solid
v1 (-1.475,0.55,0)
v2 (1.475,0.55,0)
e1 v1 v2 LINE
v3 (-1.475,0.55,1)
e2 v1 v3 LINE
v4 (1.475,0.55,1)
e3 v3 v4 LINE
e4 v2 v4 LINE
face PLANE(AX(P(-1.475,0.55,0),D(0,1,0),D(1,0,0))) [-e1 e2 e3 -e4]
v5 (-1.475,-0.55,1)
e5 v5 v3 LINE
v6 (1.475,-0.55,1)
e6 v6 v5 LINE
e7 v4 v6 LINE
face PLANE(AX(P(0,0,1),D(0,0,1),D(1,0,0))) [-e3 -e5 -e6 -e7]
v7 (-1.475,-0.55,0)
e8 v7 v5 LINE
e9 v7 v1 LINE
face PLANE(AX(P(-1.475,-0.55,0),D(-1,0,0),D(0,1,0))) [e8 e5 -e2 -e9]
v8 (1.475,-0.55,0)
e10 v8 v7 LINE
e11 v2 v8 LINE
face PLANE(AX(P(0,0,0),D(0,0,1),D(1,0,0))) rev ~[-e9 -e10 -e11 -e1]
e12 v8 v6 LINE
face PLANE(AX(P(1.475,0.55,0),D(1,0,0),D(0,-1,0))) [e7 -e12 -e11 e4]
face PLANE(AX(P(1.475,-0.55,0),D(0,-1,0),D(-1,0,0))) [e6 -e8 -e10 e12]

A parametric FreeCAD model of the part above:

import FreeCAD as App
import Part
import Sketcher

doc = App.newDocument("Part")
body = doc.addObject("PartDesign::Body", "Body")

sketch1 = body.newObject("Sketcher::SketchObject", "Sketch")
sketch1.AttachmentSupport = (doc.getObject("XY_Plane"), [""])
sketch1.MapMode = "FlatFace"
sketch1.addGeometry(Part.LineSegment(App.Vector(-1.5, 0.6, 0), App.Vector(-1.5, -0.6, 0)), False)
sketch1.addGeometry(Part.LineSegment(App.Vector(-1.5, -0.6, 0), App.Vector(1.5, -0.6, 0)), False)
sketch1.addGeometry(Part.LineSegment(App.Vector(1.5, -0.6, 0), App.Vector(1.5, 0.6, 0)), False)
sketch1.addGeometry(Part.LineSegment(App.Vector(1.5, 0.6, 0), App.Vector(-1.5, 0.6, 0)), False)
sketch1.addConstraint(Sketcher.Constraint("Coincident", 0, 2, 1, 1))
sketch1.addConstraint(Sketcher.Constraint("Coincident", 1, 2, 2, 1))
sketch1.addConstraint(Sketcher.Constraint("Coincident", 2, 2, 3, 1))
sketch1.addConstraint(Sketcher.Constraint("Coincident", 3, 2, 0, 1))
sketch1.addConstraint(Sketcher.Constraint("Vertical", 0))
sketch1.addConstraint(Sketcher.Constraint("Horizontal", 1))
sketch1.addConstraint(Sketcher.Constraint("Vertical", 2))
sketch1.addConstraint(Sketcher.Constraint("Horizontal", 3))
sketch1.addConstraint(Sketcher.Constraint("Symmetric", 0, 2, 2, 2, -1, 1))
sketch1.addConstraint(Sketcher.Constraint("DistanceY", 0, 2, 0, 1, 1.1))
sketch1.addConstraint(Sketcher.Constraint("DistanceX", 1, 1, 1, 2, 2.95))
pad1 = body.newObject("PartDesign::Pad", "Pad")
pad1.Profile = sketch1
pad1.Length = 1

doc.recompute()
